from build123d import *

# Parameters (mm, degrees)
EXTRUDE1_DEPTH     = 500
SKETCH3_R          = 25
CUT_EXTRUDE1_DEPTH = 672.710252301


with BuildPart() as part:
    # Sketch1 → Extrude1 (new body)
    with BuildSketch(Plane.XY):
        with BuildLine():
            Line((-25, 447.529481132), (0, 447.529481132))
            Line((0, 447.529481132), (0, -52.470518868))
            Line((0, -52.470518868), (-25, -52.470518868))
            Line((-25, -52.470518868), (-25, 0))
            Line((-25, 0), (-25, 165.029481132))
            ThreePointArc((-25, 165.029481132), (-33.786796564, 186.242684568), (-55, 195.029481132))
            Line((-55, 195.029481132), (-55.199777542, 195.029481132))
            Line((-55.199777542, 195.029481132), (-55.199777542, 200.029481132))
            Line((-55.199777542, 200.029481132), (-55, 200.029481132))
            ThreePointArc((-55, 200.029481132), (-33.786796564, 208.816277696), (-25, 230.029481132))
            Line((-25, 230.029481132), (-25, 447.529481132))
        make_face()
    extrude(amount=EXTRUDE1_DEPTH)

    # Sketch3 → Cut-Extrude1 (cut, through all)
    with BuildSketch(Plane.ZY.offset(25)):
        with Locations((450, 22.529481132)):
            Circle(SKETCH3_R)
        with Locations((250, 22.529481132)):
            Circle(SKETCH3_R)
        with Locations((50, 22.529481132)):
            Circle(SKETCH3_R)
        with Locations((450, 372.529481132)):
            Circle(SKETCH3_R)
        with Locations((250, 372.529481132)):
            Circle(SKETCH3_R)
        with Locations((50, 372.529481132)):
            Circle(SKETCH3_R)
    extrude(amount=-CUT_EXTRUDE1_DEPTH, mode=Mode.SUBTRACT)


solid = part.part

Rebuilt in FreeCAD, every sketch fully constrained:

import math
import FreeCAD as App
import Part
import Sketcher
from FreeCAD import Vector
Q = App.Units.Quantity

doc = App.newDocument("Part")
params = doc.addObject("Spreadsheet::Sheet", "Params")
for row, (alias, value) in enumerate([
    ("sketch1_radius", "30 mm"),
    ("sketch1_width", "25 mm"),
    ("sketch1_height", "5 mm"),
    ("sketch1_height2", "500 mm"),
    ("pad1_length", "500 mm"),
    ("sketch2_diameter", "50 mm"),
], start=1):
    params.set(f"A{row}", alias)
    params.set(f"B{row}", "=" + value)
    params.setAlias(f"B{row}", alias)

body = doc.addObject("PartDesign::Body", "Body")

sketch1 = doc.addObject("Sketcher::SketchObject", "Sketch")
body.addObject(sketch1)
sketch1.AttachmentSupport = (doc.XY_Plane, [""])
sketch1.MapMode = "FlatFace"
sketch1.addGeometry(Part.LineSegment(Vector(0, 447.53, 0), Vector(-25, 447.53, 0)), False)
sketch1.addGeometry(Part.LineSegment(Vector(-25, 447.53, 0), Vector(-25, 230.03, 0)), False)
sketch1.addGeometry(Part.ArcOfCircle(Part.Circle(Vector(-55, 230.03, 0), Vector(0, 0, 1), 30), math.radians(-90), math.radians(0)), False)
sketch1.addGeometry(Part.LineSegment(Vector(-55, 200.03, 0), Vector(-55.2, 200.03, 0)), False)
sketch1.addGeometry(Part.LineSegment(Vector(-55.2, 200.03, 0), Vector(-55.2, 195.03, 0)), False)
sketch1.addGeometry(Part.LineSegment(Vector(-55.2, 195.03, 0), Vector(-55, 195.03, 0)), False)
sketch1.addGeometry(Part.ArcOfCircle(Part.Circle(Vector(-55, 165.03, 0), Vector(0, 0, 1), 30), math.radians(0), math.radians(90)), False)
sketch1.addGeometry(Part.LineSegment(Vector(-25, 165.03, 0), Vector(-25, -52.47, 0)), False)
sketch1.addGeometry(Part.LineSegment(Vector(-25, -52.47, 0), Vector(0, -52.47, 0)), False)
sketch1.addGeometry(Part.LineSegment(Vector(0, -52.47, 0), Vector(0, 447.53, 0)), False)
sketch1.addConstraint(Sketcher.Constraint("Coincident", 0, 2, 1, 1))
sketch1.addConstraint(Sketcher.Constraint("Tangent", 1, 2, 2, 2))
sketch1.addConstraint(Sketcher.Constraint("Tangent", 2, 1, 3, 1))
sketch1.addConstraint(Sketcher.Constraint("Coincident", 3, 2, 4, 1))
sketch1.addConstraint(Sketcher.Constraint("Coincident", 4, 2, 5, 1))
sketch1.addConstraint(Sketcher.Constraint("Tangent", 5, 2, 6, 2))
sketch1.addConstraint(Sketcher.Constraint("Tangent", 6, 1, 7, 1))
sketch1.addConstraint(Sketcher.Constraint("Coincident", 7, 2, 8, 1))
sketch1.addConstraint(Sketcher.Constraint("Coincident", 8, 2, 9, 1))
sketch1.addConstraint(Sketcher.Constraint("Coincident", 9, 2, 0, 1))
sketch1.addConstraint(Sketcher.Constraint("Horizontal", 0))
sketch1.addConstraint(Sketcher.Constraint("Vertical", 1))
sketch1.addConstraint(Sketcher.Constraint("Horizontal", 3))
sketch1.addConstraint(Sketcher.Constraint("Vertical", 4))
sketch1.addConstraint(Sketcher.Constraint("Horizontal", 5))
sketch1.addConstraint(Sketcher.Constraint("Vertical", 7))
sketch1.addConstraint(Sketcher.Constraint("Horizontal", 8))
sketch1.addConstraint(Sketcher.Constraint("Vertical", 9))
sketch1.addConstraint(Sketcher.Constraint("Equal", 2, 6))
sketch1.addConstraint(Sketcher.Constraint("PointOnObject", 8, 2, -2))
sketch1.addConstraint(Sketcher.Constraint("Vertical", 2, 3, 6, 3))
sketch1.addConstraint(Sketcher.Constraint("Equal", 1, 7))
sketch1.addConstraint(Sketcher.Constraint("Radius", 2, Q("30 mm")))
sketch1.addConstraint(Sketcher.Constraint("DistanceX", 0, 2, 0, 1, Q("25 mm")))
sketch1.addConstraint(Sketcher.Constraint("DistanceY", 4, 2, 4, 1, Q("5 mm")))
sketch1.addConstraint(Sketcher.Constraint("DistanceY", 9, 1, 9, 2, Q("500 mm")))
sketch1.addConstraint(Sketcher.Constraint("DistanceX", 3, 2, 3, 1, Q("0.199778 mm")))
sketch1.addConstraint(Sketcher.Constraint("DistanceY", -1, 1, 2, 3, Q("230.029481 mm")))
sketch1.setExpression("Constraints[22]", "Params.sketch1_radius")
sketch1.setExpression("Constraints[23]", "Params.sketch1_width")
sketch1.setExpression("Constraints[24]", "Params.sketch1_height")
sketch1.setExpression("Constraints[25]", "Params.sketch1_height2")
pad1 = doc.addObject("PartDesign::Pad", "Pad")
body.addObject(pad1)
pad1.Profile = sketch1
pad1.setExpression("Length", "Params.pad1_length")

sketch2 = doc.addObject("Sketcher::SketchObject", "Sketch001")
body.addObject(sketch2)
sketch2.AttachmentSupport = (doc.YZ_Plane, [""])
sketch2.MapMode = "FlatFace"
sketch2.AttachmentOffset = App.Placement(Vector(0, 0, -25), App.Rotation())
sketch2.addGeometry(Part.Circle(Vector(23, 450, 0), Vector(0, 0, 1), 25), False)
sketch2.addGeometry(Part.Circle(Vector(23, 250, 0), Vector(0, 0, 1), 25), False)
sketch2.addGeometry(Part.Circle(Vector(23, 50, 0), Vector(0, 0, 1), 25), False)
sketch2.addGeometry(Part.Circle(Vector(373, 450, 0), Vector(0, 0, 1), 25), False)
sketch2.addGeometry(Part.Circle(Vector(373, 250, 0), Vector(0, 0, 1), 25), False)
sketch2.addGeometry(Part.Circle(Vector(373, 50, 0), Vector(0, 0, 1), 25), False)
sketch2.addConstraint(Sketcher.Constraint("Equal", 0, 1))
sketch2.addConstraint(Sketcher.Constraint("Equal", 1, 2))
sketch2.addConstraint(Sketcher.Constraint("Equal", 2, 3))
sketch2.addConstraint(Sketcher.Constraint("Equal", 3, 4))
sketch2.addConstraint(Sketcher.Constraint("Equal", 4, 5))
sketch2.addConstraint(Sketcher.Constraint("Horizontal", 0, 3, 3, 3))
sketch2.addConstraint(Sketcher.Constraint("Horizontal", 1, 3, 4, 3))
sketch2.addConstraint(Sketcher.Constraint("Horizontal", 2, 3, 5, 3))
sketch2.addConstraint(Sketcher.Constraint("Vertical", 0, 3, 1, 3))
sketch2.addConstraint(Sketcher.Constraint("Vertical", 1, 3, 2, 3))
sketch2.addConstraint(Sketcher.Constraint("Vertical", 3, 3, 4, 3))
sketch2.addConstraint(Sketcher.Constraint("Vertical", 4, 3, 5, 3))
sketch2.addConstraint(Sketcher.Constraint("Diameter", 0, Q("50 mm")))
sketch2.addConstraint(Sketcher.Constraint("DistanceY", -1, 1, 0, 3, Q("450 mm")))
sketch2.addConstraint(Sketcher.Constraint("DistanceY", -1, 1, 1, 3, Q("250 mm")))
sketch2.addConstraint(Sketcher.Constraint("DistanceY", -1, 1, 2, 3, Q("50 mm")))
sketch2.addConstraint(Sketcher.Constraint("DistanceX", 0, 3, 3, 3, Q("350 mm")))
sketch2.addConstraint(Sketcher.Constraint("DistanceX", -1, 1, 0, 3, Q("22.529481 mm")))
sketch2.setExpression("Constraints[12]", "Params.sketch2_diameter")
pocket1 = doc.addObject("PartDesign::Pocket", "Pocket")
body.addObject(pocket1)
pocket1.Profile = sketch2
pocket1.Type = "ThroughAll"
pocket1.Reversed = True

doc.recompute()
